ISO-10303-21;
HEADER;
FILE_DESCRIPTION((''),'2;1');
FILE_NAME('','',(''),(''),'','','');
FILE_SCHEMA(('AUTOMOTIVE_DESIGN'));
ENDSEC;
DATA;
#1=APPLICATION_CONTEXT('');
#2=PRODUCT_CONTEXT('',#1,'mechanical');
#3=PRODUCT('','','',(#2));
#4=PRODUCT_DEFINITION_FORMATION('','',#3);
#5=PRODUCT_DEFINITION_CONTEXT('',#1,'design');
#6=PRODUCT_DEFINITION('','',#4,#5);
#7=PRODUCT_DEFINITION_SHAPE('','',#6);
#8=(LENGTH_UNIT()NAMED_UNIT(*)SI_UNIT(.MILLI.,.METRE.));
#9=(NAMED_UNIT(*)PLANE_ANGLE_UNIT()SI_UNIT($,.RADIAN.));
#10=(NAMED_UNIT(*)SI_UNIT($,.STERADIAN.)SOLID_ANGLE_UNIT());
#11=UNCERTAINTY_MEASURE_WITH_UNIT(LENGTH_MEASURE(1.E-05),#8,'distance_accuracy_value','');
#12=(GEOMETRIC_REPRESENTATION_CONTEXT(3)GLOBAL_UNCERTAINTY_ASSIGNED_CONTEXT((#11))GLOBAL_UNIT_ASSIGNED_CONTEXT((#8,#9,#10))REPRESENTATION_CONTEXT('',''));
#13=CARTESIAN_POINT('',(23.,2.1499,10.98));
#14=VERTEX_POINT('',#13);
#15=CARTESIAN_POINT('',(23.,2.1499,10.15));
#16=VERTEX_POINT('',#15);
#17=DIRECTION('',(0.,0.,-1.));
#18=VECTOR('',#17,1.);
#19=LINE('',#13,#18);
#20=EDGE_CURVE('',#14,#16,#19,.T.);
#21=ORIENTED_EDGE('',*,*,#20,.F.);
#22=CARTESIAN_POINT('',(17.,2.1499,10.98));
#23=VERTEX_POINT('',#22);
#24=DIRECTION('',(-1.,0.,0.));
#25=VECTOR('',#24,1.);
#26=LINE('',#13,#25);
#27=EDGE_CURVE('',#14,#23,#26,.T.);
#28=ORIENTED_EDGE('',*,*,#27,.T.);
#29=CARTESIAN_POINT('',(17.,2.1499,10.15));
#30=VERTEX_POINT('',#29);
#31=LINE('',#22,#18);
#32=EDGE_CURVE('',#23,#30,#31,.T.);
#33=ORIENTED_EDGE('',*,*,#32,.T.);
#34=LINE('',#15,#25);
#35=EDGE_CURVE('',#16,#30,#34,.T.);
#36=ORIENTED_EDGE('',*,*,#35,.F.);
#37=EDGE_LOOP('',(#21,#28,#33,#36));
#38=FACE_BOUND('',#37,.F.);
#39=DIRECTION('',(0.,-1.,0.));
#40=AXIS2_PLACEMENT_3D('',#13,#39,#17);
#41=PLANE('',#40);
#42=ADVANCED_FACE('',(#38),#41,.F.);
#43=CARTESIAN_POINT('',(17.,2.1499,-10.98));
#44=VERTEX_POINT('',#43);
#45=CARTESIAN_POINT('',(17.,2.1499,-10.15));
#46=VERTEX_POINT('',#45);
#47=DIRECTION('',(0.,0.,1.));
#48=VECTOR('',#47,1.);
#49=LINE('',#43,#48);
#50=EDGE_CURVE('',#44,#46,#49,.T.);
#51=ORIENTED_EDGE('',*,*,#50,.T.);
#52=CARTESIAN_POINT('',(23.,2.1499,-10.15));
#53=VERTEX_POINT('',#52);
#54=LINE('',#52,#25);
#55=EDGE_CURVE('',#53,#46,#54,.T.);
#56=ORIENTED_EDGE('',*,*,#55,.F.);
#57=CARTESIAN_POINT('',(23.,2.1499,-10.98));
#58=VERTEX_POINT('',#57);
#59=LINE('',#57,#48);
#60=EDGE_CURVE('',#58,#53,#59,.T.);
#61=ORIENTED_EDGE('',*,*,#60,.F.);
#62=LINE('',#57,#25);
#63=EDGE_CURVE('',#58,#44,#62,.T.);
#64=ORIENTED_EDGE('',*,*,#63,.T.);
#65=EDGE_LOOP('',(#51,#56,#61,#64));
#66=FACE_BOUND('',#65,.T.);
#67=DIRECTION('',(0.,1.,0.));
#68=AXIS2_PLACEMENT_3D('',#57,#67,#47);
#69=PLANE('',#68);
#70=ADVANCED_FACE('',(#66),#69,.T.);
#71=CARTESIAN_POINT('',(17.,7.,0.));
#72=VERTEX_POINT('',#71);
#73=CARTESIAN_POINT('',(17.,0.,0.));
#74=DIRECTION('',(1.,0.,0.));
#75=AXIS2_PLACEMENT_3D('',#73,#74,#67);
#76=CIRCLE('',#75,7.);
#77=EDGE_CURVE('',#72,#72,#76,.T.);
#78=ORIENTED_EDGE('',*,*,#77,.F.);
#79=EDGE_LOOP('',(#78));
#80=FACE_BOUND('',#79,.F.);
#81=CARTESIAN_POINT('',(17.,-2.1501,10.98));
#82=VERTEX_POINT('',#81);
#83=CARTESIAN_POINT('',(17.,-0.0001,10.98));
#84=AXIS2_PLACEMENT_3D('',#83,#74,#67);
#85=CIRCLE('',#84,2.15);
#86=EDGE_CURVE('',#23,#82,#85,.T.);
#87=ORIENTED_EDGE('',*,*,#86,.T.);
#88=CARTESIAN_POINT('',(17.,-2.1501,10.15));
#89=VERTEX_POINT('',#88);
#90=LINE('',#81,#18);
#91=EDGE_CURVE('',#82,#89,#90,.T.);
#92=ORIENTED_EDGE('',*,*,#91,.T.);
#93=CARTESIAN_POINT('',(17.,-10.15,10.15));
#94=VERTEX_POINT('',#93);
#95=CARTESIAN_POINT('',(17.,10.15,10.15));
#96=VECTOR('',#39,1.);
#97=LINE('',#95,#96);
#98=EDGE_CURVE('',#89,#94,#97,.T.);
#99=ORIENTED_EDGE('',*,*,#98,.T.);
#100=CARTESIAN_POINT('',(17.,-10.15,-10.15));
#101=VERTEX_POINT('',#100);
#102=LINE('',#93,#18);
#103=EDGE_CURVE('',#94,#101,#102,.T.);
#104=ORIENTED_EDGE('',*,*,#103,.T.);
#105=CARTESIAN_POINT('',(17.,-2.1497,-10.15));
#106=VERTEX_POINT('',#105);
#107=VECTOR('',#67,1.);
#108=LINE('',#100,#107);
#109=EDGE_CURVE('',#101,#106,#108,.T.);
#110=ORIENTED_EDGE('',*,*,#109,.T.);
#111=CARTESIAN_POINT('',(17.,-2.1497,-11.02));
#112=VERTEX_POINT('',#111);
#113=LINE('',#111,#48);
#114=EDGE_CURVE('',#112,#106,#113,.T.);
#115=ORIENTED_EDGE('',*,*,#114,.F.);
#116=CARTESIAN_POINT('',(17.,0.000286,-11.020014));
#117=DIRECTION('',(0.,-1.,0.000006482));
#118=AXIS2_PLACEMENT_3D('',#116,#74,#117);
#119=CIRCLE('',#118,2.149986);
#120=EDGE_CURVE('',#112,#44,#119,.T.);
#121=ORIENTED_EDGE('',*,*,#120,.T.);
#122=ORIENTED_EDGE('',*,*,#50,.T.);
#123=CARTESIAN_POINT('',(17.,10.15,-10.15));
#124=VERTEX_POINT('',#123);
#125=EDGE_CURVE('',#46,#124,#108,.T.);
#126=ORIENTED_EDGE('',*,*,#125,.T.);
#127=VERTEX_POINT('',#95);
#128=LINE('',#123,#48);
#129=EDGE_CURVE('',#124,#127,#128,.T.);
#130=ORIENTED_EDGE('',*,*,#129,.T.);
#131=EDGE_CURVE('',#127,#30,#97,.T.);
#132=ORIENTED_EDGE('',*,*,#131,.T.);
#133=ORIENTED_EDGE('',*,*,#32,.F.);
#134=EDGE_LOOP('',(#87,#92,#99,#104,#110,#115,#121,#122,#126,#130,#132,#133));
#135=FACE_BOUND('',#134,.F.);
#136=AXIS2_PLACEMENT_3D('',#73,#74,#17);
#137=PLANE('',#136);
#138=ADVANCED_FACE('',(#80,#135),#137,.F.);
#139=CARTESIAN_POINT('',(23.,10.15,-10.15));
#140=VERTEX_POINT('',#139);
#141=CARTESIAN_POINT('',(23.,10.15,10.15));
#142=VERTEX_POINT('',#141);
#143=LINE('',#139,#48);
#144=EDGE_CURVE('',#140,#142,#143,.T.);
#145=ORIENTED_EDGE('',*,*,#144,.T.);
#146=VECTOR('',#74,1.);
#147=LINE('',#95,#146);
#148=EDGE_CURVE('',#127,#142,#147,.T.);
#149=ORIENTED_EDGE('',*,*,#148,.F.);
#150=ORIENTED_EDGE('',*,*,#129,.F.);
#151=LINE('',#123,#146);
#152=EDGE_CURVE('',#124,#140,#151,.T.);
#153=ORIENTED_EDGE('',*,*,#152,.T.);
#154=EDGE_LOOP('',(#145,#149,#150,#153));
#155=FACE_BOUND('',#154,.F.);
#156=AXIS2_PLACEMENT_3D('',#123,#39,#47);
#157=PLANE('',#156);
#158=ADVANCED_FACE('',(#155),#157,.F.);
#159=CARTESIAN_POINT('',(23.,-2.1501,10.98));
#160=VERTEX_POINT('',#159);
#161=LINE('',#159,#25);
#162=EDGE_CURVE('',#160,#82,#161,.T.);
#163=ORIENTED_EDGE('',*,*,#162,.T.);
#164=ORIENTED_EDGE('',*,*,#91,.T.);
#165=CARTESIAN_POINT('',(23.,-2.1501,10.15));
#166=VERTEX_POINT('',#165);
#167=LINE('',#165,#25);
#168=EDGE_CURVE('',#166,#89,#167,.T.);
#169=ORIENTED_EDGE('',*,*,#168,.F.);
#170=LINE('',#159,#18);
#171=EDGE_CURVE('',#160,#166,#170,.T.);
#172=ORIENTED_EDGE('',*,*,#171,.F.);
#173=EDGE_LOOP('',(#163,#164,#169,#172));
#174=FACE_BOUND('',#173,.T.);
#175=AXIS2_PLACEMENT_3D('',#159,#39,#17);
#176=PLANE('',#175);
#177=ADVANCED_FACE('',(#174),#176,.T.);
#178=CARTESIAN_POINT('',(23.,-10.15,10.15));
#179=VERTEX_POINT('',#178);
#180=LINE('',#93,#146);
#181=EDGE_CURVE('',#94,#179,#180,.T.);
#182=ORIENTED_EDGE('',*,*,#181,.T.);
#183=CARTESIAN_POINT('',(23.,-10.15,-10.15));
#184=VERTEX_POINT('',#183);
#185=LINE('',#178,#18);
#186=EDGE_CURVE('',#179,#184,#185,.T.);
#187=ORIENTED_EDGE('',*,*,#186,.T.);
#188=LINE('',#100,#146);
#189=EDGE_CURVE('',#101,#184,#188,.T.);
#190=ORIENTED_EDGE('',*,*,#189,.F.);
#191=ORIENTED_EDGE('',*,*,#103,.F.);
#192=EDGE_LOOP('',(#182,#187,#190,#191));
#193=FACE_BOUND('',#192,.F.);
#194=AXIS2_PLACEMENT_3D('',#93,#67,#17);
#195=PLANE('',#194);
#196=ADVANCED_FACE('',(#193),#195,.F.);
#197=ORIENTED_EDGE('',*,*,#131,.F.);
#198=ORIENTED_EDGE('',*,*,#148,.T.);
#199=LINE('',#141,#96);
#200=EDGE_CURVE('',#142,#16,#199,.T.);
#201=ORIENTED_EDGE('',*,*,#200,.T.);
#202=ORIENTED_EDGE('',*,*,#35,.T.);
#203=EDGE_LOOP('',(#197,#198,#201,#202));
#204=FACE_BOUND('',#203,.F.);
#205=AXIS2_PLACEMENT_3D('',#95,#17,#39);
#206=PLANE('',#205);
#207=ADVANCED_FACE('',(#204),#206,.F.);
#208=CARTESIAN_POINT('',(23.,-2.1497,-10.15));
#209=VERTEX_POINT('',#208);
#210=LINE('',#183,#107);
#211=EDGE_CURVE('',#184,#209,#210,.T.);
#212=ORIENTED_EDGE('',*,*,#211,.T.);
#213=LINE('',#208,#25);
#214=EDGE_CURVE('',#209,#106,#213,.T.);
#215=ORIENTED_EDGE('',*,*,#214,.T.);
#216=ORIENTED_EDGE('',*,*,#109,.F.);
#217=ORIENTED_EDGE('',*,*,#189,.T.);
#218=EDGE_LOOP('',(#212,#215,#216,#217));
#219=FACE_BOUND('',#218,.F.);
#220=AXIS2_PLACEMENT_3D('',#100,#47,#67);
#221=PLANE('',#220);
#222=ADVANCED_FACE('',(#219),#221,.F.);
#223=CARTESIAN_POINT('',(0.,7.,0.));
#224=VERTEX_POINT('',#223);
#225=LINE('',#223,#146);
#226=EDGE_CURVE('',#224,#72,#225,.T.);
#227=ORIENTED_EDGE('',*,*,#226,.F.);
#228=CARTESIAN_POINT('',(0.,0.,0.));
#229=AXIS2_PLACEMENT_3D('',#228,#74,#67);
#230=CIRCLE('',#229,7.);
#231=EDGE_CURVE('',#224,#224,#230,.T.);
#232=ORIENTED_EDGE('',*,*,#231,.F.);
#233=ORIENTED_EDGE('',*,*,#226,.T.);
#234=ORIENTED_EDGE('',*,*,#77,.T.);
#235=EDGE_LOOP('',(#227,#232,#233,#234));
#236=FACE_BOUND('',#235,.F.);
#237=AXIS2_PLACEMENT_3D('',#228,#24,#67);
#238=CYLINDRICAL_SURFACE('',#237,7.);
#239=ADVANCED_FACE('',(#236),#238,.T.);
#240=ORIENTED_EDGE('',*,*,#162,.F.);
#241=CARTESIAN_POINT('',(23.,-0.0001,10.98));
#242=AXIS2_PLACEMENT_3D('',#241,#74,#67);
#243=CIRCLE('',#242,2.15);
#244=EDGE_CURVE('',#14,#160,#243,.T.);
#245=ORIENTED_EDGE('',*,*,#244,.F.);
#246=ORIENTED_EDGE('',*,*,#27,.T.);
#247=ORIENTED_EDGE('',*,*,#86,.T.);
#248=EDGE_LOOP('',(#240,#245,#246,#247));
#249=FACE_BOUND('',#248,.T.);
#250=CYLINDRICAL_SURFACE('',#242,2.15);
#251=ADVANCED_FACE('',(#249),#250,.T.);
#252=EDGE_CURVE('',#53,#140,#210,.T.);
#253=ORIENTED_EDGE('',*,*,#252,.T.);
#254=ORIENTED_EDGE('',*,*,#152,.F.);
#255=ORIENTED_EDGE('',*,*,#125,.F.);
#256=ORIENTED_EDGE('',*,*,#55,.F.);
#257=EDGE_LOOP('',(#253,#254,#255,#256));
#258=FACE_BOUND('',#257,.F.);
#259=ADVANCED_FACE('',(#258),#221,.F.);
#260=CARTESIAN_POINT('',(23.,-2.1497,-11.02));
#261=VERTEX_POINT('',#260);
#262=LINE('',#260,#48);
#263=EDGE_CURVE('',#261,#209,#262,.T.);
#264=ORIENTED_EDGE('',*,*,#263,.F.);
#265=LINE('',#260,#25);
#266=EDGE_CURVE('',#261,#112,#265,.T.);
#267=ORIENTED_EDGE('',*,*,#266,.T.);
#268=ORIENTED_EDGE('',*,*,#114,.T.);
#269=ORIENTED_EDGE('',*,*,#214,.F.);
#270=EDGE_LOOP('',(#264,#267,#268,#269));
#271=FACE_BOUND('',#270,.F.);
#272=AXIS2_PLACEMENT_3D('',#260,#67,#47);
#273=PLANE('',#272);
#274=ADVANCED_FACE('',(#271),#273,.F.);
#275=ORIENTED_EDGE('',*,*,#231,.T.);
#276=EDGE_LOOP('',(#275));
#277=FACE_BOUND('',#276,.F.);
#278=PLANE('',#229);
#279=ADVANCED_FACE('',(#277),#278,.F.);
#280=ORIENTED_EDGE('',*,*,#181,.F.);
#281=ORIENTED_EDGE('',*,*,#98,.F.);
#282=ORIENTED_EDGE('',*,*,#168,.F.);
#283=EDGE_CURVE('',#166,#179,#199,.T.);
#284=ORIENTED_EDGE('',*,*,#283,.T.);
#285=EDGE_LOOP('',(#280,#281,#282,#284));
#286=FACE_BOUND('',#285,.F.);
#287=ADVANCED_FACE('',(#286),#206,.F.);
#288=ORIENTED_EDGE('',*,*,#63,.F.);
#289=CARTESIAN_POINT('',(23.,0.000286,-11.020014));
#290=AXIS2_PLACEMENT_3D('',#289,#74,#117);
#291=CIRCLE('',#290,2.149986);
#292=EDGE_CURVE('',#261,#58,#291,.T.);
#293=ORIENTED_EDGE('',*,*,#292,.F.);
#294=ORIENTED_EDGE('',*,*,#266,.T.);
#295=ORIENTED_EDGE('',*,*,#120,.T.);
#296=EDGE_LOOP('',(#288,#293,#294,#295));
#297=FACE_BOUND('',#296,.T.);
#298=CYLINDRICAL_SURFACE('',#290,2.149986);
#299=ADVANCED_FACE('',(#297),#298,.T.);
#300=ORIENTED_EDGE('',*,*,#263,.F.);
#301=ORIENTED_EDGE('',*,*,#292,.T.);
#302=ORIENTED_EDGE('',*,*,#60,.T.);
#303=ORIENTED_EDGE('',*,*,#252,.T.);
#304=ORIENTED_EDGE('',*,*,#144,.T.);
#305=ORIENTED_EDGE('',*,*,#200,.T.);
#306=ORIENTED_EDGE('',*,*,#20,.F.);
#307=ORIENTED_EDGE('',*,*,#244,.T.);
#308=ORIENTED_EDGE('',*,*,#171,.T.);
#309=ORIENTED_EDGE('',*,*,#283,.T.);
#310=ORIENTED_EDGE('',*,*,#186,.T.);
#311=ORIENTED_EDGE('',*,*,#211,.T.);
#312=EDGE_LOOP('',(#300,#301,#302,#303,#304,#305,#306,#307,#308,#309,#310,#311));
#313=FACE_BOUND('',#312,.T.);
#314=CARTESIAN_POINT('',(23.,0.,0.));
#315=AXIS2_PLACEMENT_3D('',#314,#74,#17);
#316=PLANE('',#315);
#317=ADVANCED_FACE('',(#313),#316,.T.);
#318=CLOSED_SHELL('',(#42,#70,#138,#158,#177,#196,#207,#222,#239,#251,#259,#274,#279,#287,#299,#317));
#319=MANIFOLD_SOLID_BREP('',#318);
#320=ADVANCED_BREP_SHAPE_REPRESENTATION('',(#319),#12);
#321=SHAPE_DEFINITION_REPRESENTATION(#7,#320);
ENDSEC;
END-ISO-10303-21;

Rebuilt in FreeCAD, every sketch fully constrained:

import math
import FreeCAD as App
import Part
import Sketcher
from FreeCAD import Vector

doc = App.newDocument("Part")
body = doc.addObject("PartDesign::Body", "Body")

sketch1 = doc.addObject("Sketcher::SketchObject", "Sketch")
body.addObject(sketch1)
sketch1.AttachmentSupport = (doc.YZ_Plane, [""])
sketch1.MapMode = "FlatFace"
sketch1.addGeometry(Part.Circle(Vector(0, 0, 0), Vector(0, 0, 1), 7), False)
sketch1.addConstraint(Sketcher.Constraint("Coincident", 0, 3, -1, 1))
sketch1.addConstraint(Sketcher.Constraint("Diameter", 0, 14.0))
pad1 = doc.addObject("PartDesign::Pad", "Pad")
body.addObject(pad1)
pad1.Profile = sketch1
pad1.Length = 17

sketch2 = doc.addObject("Sketcher::SketchObject", "Sketch001")
body.addObject(sketch2)
sketch2.AttachmentSupport = (doc.YZ_Plane, [""])
sketch2.MapMode = "FlatFace"
sketch2.AttachmentOffset = App.Placement(Vector(0, 0, 17), App.Rotation())
sketch2.addGeometry(Part.LineSegment(Vector(10, 10, 0), Vector(-10, 10, 0)), False)
sketch2.addGeometry(Part.LineSegment(Vector(-10, 10, 0), Vector(-10, -10, 0)), False)
sketch2.addGeometry(Part.LineSegment(Vector(-10, -10, 0), Vector(10, -10, 0)), False)
sketch2.addGeometry(Part.LineSegment(Vector(10, -10, 0), Vector(10, 10, 0)), False)
sketch2.addConstraint(Sketcher.Constraint("Coincident", 0, 2, 1, 1))
sketch2.addConstraint(Sketcher.Constraint("Coincident", 1, 2, 2, 1))
sketch2.addConstraint(Sketcher.Constraint("Coincident", 2, 2, 3, 1))
sketch2.addConstraint(Sketcher.Constraint("Coincident", 3, 2, 0, 1))
sketch2.addConstraint(Sketcher.Constraint("Horizontal", 0))
sketch2.addConstraint(Sketcher.Constraint("Vertical", 1))
sketch2.addConstraint(Sketcher.Constraint("Horizontal", 2))
sketch2.addConstraint(Sketcher.Constraint("Vertical", 3))
sketch2.addConstraint(Sketcher.Constraint("Symmetric", 0, 2, 2, 2, -1, 1))
sketch2.addConstraint(Sketcher.Constraint("Equal", 2, 1))
sketch2.addConstraint(Sketcher.Constraint("DistanceX", 0, 2, 0, 1, 20.3))
pad2 = doc.addObject("PartDesign::Pad", "Pad001")
body.addObject(pad2)
pad2.Profile = sketch2
pad2.Length = 6

sketch3 = doc.addObject("Sketcher::SketchObject", "Sketch002")
body.addObject(sketch3)
sketch3.AttachmentSupport = (doc.YZ_Plane, [""])
sketch3.MapMode = "FlatFace"
sketch3.AttachmentOffset = App.Placement(Vector(0, 0, 23), App.Rotation())
sketch3.addGeometry(Part.LineSegment(Vector(2.1499, 10.15, 0), Vector(2.1499, 10.98, 0)), False)
sketch3.addGeometry(Part.ArcOfCircle(Part.Circle(Vector(-0.0001, 10.98, 0), Vector(0, 0, 1), 2.15), math.radians(0), math.radians(180)), False)
sketch3.addGeometry(Part.LineSegment(Vector(-2.1501, 10.98, 0), Vector(-2.1501, 10.15, 0)), False)
sketch3.addGeometry(Part.LineSegment(Vector(-2.1501, 10.15, 0), Vector(2.1499, 10.15, 0)), False)
sketch3.addGeometry(Part.LineSegment(Vector(-2.1497, -10.15, 0), Vector(-2.1497, -11.02, 0)), False)
sketch3.addGeometry(Part.ArcOfCircle(Part.Circle(Vector(0.0003, -11.02, 0), Vector(0, 0, 1), 2.15), math.radians(180), math.radians(361.066043)), False)
sketch3.addGeometry(Part.LineSegment(Vector(2.1499, -10.98, 0), Vector(2.1499, -10.15, 0)), False)
sketch3.addGeometry(Part.LineSegment(Vector(2.1499, -10.15, 0), Vector(-2.1497, -10.15, 0)), False)
sketch3.addConstraint(Sketcher.Constraint("Coincident", 0, 2, 1, 1))
sketch3.addConstraint(Sketcher.Constraint("Coincident", 1, 2, 2, 1))
sketch3.addConstraint(Sketcher.Constraint("Coincident", 2, 2, 3, 1))
sketch3.addConstraint(Sketcher.Constraint("Coincident", 3, 2, 0, 1))
sketch3.addConstraint(Sketcher.Constraint("Coincident", 4, 2, 5, 1))
sketch3.addConstraint(Sketcher.Constraint("Coincident", 5, 2, 6, 1))
sketch3.addConstraint(Sketcher.Constraint("Coincident", 6, 2, 7, 1))
sketch3.addConstraint(Sketcher.Constraint("Coincident", 7, 2, 4, 1))
sketch3.addConstraint(Sketcher.Constraint("Vertical", 0))
sketch3.addConstraint(Sketcher.Constraint("Vertical", 2))
sketch3.addConstraint(Sketcher.Constraint("Horizontal", 3))
sketch3.addConstraint(Sketcher.Constraint("Vertical", 4))
sketch3.addConstraint(Sketcher.Constraint("Vertical", 6))
sketch3.addConstraint(Sketcher.Constraint("Horizontal", 7))
sketch3.addConstraint(Sketcher.Constraint("PointOnObject", 1, 3, -2))
sketch3.addConstraint(Sketcher.Constraint("Radius", 1, 2.15))
sketch3.addConstraint(Sketcher.Constraint("Radius", 5, 2.15))
sketch3.addConstraint(Sketcher.Constraint("DistanceY", 5, 3, 1, 3, 22.0))
sketch3.addConstraint(Sketcher.Constraint("DistanceY", 5, 3, 0, 2, 22.0))
sketch3.addConstraint(Sketcher.Constraint("DistanceY", 5, 3, 1, 2, 22.0))
sketch3.addConstraint(Sketcher.Constraint("DistanceY", 4, 2, 1, 2, 22.0))
sketch3.addConstraint(Sketcher.Constraint("DistanceX", 2, 2, 5, 2, 4.3))
sketch3.addConstraint(Sketcher.Constraint("DistanceX", 7, 2, 7, 1, 4.2996))
sketch3.addConstraint(Sketcher.Constraint("DistanceY", 0, 1, 0, 2, 0.83))
sketch3.addConstraint(Sketcher.Constraint("DistanceY", 4, 2, 4, 1, 0.87))
sketch3.addConstraint(Sketcher.Constraint("DistanceY", -1, 1, 1, 3, 10.98))
pad3 = doc.addObject("PartDesign::Pad", "Pad002")
body.addObject(pad3)
pad3.Profile = sketch3
pad3.Length = 6
pad3.Reversed = True

doc.recompute()
